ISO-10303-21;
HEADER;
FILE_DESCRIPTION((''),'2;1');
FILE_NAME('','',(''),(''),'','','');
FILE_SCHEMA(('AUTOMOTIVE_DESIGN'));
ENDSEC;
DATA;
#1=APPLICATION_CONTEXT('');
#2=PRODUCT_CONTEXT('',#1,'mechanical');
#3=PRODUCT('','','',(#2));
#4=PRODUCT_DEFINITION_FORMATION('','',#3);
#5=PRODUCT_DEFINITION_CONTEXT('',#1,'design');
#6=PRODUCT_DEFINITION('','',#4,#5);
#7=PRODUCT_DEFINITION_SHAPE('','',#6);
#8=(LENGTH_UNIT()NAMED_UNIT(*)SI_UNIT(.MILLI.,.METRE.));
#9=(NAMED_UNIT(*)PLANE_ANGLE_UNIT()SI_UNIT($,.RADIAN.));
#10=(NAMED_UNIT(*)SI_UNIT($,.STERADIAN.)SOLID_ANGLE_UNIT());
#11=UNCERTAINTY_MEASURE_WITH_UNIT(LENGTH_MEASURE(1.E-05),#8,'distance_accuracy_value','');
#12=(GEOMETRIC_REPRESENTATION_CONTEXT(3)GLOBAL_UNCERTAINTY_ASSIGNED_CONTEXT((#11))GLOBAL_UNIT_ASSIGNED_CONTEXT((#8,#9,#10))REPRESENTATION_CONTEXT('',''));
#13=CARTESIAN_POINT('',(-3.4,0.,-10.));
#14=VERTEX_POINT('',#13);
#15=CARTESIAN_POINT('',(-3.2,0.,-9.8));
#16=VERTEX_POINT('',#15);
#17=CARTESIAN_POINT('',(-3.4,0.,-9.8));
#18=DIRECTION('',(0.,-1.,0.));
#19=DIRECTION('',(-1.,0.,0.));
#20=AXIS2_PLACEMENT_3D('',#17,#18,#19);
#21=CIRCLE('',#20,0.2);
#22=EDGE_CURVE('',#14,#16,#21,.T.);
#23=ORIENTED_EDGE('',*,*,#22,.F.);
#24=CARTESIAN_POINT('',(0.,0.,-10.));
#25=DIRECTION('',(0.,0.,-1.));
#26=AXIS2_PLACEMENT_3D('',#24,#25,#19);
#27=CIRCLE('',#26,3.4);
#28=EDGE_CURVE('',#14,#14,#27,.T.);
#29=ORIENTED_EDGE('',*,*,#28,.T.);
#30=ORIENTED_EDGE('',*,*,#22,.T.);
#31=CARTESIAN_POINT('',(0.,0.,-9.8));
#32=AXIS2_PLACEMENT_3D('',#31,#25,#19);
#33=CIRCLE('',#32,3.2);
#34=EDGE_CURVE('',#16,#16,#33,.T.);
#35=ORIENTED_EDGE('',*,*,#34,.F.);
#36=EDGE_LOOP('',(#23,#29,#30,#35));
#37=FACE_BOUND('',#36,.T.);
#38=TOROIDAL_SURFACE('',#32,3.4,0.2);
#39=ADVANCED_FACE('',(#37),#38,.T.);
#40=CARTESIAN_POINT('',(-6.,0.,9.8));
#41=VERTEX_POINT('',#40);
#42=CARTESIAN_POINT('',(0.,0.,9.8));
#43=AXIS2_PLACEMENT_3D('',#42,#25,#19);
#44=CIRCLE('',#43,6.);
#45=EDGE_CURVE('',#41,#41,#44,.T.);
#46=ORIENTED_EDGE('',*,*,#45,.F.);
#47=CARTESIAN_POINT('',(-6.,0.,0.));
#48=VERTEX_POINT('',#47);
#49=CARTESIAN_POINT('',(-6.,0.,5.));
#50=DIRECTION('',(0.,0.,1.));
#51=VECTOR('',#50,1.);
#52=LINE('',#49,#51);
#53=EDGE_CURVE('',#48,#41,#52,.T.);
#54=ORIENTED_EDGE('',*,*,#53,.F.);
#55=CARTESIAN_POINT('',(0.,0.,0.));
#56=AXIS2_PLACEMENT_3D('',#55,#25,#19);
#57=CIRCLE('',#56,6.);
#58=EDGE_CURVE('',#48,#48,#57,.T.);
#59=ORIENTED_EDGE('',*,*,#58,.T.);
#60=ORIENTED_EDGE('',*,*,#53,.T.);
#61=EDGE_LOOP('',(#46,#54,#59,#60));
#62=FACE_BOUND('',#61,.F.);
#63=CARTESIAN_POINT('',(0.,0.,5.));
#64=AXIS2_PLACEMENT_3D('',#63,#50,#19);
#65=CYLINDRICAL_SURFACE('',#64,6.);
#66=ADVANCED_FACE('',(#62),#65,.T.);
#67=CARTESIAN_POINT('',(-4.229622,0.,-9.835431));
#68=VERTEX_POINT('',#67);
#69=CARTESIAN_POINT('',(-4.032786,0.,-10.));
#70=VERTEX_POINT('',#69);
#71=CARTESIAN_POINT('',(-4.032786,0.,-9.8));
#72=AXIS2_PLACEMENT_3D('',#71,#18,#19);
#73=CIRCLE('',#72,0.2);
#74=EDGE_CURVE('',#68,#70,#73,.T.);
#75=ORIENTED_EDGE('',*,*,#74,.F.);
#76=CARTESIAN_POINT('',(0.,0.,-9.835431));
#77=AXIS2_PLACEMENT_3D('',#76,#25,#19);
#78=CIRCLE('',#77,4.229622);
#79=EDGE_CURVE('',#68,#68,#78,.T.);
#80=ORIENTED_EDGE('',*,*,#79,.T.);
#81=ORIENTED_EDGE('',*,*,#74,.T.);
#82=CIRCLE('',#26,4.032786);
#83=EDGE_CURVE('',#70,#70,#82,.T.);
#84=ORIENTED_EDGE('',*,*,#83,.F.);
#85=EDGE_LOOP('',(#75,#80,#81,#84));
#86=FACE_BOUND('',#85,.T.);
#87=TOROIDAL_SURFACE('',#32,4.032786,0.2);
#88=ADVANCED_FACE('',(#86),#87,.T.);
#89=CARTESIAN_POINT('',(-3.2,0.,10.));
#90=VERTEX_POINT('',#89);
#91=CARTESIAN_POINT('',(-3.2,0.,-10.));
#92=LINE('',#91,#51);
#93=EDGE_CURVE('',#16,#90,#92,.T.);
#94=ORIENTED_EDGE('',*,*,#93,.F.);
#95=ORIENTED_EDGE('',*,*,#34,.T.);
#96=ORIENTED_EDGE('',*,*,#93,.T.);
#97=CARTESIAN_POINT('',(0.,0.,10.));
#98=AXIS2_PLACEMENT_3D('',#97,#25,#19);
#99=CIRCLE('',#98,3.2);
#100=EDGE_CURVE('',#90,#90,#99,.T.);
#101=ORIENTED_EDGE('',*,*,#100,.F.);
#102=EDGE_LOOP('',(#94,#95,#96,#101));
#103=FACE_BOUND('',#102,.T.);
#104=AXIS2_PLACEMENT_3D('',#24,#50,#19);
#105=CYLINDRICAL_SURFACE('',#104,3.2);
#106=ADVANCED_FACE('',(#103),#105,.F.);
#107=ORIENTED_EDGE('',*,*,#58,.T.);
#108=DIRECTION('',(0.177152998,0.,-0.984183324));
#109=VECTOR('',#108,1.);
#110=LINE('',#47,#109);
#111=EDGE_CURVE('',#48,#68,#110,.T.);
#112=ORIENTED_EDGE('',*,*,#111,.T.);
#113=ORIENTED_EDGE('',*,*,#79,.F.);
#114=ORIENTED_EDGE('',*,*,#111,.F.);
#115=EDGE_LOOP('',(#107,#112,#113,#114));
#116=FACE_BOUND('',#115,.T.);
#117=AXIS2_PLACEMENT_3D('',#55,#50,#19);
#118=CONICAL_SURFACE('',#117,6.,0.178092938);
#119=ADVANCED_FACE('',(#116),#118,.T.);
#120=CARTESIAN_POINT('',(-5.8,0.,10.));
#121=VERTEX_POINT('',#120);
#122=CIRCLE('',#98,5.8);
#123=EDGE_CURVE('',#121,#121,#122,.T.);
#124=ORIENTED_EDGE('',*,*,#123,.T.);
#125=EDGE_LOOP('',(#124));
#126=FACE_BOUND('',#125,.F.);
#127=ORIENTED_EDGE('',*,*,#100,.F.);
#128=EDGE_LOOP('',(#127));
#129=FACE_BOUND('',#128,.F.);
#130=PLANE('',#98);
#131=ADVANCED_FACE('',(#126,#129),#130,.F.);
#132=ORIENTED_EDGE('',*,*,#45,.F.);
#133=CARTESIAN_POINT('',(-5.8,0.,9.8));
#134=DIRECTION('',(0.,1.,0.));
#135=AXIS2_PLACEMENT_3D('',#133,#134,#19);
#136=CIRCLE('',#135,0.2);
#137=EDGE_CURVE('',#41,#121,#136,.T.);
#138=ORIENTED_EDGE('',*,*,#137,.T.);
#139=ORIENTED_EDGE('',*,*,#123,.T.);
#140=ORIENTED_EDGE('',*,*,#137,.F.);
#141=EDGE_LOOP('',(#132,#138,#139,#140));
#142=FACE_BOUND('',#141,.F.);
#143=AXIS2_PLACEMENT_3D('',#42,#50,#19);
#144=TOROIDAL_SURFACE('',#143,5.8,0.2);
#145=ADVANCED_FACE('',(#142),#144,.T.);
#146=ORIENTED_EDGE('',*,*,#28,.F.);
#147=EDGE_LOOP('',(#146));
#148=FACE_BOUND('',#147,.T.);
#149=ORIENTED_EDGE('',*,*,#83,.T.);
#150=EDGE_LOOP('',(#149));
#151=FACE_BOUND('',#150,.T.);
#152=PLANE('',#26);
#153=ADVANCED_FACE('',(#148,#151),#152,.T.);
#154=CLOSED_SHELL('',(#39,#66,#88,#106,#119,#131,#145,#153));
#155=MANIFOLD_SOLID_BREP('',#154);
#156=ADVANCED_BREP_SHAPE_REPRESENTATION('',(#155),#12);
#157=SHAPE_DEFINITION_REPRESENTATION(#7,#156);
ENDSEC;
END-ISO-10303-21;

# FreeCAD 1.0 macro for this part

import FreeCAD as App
import Part
import Sketcher
Q = App.Units.Quantity


def edges_at(feature, points):
    """Names of the edges that pass closest to the given points."""
    edges = feature.Shape.Edges
    near = lambda p: min(range(len(edges)), key=lambda i: edges[i].distToShape(Part.Vertex(*p))[0])
    return sorted({f"Edge{near(p) + 1}" for p in points})

doc = App.newDocument("Part")
body = doc.addObject("PartDesign::Body", "Body")

# Sketch on XZ plane
sketch1 = doc.addObject("Sketcher::SketchObject", "Sketch")
body.addObject(sketch1)
sketch1.AttachmentSupport = (doc.XZ_Plane, [""])
sketch1.MapMode = "FlatFace"
sketch1.addGeometry(Part.LineSegment(App.Vector(-6, 10, 0), App.Vector(-6, 0, 0)), False)
sketch1.addGeometry(Part.LineSegment(App.Vector(-6, 0, 0), App.Vector(-4.2, -10, 0)), False)
sketch1.addGeometry(Part.LineSegment(App.Vector(-4.2, -10, 0), App.Vector(-3.2, -10, 0)), False)
sketch1.addGeometry(Part.LineSegment(App.Vector(-3.2, -10, 0), App.Vector(-3.2, 10, 0)), False)
sketch1.addGeometry(Part.LineSegment(App.Vector(-3.2, 10, 0), App.Vector(-6, 10, 0)), False)
sketch1.addConstraint(Sketcher.Constraint("Coincident", 0, 2, 1, 1))
sketch1.addConstraint(Sketcher.Constraint("Coincident", 1, 2, 2, 1))
sketch1.addConstraint(Sketcher.Constraint("Coincident", 2, 2, 3, 1))
sketch1.addConstraint(Sketcher.Constraint("Coincident", 3, 2, 4, 1))
sketch1.addConstraint(Sketcher.Constraint("Coincident", 4, 2, 0, 1))
sketch1.addConstraint(Sketcher.Constraint("Vertical", 0))
sketch1.addConstraint(Sketcher.Constraint("Horizontal", 2))
sketch1.addConstraint(Sketcher.Constraint("Vertical", 3))
sketch1.addConstraint(Sketcher.Constraint("Horizontal", 4))
sketch1.addConstraint(Sketcher.Constraint("PointOnObject", 0, 2, -1))
sketch1.addConstraint(Sketcher.Constraint("DistanceX", 2, 1, 2, 2, Q("1 mm")))
sketch1.addConstraint(Sketcher.Constraint("DistanceY", 0, 2, 0, 1, Q("10 mm")))
sketch1.addConstraint(Sketcher.Constraint("DistanceY", 3, 1, 3, 2, Q("20 mm")))
sketch1.addConstraint(Sketcher.Constraint("DistanceX", 4, 2, 4, 1, Q("2.8 mm")))
sketch1.addConstraint(Sketcher.Constraint("DistanceX", 0, 2, -1, 1, Q("6 mm")))
revolution = doc.addObject("PartDesign::Revolution", "Revolution")
body.addObject(revolution)
revolution.Profile = sketch1
revolution.ReferenceAxis = (sketch1, ["V_Axis"])
revolution.Angle = 360
doc.recompute()

fillet = doc.addObject("PartDesign::Fillet", "Fillet")
body.addObject(fillet)
fillet.Base = (revolution, edges_at(revolution, [(4.2, 0, -10), (6, 0, 10), (3.2, 0, -10)]))
fillet.Radius = 0.2

doc.recompute()
